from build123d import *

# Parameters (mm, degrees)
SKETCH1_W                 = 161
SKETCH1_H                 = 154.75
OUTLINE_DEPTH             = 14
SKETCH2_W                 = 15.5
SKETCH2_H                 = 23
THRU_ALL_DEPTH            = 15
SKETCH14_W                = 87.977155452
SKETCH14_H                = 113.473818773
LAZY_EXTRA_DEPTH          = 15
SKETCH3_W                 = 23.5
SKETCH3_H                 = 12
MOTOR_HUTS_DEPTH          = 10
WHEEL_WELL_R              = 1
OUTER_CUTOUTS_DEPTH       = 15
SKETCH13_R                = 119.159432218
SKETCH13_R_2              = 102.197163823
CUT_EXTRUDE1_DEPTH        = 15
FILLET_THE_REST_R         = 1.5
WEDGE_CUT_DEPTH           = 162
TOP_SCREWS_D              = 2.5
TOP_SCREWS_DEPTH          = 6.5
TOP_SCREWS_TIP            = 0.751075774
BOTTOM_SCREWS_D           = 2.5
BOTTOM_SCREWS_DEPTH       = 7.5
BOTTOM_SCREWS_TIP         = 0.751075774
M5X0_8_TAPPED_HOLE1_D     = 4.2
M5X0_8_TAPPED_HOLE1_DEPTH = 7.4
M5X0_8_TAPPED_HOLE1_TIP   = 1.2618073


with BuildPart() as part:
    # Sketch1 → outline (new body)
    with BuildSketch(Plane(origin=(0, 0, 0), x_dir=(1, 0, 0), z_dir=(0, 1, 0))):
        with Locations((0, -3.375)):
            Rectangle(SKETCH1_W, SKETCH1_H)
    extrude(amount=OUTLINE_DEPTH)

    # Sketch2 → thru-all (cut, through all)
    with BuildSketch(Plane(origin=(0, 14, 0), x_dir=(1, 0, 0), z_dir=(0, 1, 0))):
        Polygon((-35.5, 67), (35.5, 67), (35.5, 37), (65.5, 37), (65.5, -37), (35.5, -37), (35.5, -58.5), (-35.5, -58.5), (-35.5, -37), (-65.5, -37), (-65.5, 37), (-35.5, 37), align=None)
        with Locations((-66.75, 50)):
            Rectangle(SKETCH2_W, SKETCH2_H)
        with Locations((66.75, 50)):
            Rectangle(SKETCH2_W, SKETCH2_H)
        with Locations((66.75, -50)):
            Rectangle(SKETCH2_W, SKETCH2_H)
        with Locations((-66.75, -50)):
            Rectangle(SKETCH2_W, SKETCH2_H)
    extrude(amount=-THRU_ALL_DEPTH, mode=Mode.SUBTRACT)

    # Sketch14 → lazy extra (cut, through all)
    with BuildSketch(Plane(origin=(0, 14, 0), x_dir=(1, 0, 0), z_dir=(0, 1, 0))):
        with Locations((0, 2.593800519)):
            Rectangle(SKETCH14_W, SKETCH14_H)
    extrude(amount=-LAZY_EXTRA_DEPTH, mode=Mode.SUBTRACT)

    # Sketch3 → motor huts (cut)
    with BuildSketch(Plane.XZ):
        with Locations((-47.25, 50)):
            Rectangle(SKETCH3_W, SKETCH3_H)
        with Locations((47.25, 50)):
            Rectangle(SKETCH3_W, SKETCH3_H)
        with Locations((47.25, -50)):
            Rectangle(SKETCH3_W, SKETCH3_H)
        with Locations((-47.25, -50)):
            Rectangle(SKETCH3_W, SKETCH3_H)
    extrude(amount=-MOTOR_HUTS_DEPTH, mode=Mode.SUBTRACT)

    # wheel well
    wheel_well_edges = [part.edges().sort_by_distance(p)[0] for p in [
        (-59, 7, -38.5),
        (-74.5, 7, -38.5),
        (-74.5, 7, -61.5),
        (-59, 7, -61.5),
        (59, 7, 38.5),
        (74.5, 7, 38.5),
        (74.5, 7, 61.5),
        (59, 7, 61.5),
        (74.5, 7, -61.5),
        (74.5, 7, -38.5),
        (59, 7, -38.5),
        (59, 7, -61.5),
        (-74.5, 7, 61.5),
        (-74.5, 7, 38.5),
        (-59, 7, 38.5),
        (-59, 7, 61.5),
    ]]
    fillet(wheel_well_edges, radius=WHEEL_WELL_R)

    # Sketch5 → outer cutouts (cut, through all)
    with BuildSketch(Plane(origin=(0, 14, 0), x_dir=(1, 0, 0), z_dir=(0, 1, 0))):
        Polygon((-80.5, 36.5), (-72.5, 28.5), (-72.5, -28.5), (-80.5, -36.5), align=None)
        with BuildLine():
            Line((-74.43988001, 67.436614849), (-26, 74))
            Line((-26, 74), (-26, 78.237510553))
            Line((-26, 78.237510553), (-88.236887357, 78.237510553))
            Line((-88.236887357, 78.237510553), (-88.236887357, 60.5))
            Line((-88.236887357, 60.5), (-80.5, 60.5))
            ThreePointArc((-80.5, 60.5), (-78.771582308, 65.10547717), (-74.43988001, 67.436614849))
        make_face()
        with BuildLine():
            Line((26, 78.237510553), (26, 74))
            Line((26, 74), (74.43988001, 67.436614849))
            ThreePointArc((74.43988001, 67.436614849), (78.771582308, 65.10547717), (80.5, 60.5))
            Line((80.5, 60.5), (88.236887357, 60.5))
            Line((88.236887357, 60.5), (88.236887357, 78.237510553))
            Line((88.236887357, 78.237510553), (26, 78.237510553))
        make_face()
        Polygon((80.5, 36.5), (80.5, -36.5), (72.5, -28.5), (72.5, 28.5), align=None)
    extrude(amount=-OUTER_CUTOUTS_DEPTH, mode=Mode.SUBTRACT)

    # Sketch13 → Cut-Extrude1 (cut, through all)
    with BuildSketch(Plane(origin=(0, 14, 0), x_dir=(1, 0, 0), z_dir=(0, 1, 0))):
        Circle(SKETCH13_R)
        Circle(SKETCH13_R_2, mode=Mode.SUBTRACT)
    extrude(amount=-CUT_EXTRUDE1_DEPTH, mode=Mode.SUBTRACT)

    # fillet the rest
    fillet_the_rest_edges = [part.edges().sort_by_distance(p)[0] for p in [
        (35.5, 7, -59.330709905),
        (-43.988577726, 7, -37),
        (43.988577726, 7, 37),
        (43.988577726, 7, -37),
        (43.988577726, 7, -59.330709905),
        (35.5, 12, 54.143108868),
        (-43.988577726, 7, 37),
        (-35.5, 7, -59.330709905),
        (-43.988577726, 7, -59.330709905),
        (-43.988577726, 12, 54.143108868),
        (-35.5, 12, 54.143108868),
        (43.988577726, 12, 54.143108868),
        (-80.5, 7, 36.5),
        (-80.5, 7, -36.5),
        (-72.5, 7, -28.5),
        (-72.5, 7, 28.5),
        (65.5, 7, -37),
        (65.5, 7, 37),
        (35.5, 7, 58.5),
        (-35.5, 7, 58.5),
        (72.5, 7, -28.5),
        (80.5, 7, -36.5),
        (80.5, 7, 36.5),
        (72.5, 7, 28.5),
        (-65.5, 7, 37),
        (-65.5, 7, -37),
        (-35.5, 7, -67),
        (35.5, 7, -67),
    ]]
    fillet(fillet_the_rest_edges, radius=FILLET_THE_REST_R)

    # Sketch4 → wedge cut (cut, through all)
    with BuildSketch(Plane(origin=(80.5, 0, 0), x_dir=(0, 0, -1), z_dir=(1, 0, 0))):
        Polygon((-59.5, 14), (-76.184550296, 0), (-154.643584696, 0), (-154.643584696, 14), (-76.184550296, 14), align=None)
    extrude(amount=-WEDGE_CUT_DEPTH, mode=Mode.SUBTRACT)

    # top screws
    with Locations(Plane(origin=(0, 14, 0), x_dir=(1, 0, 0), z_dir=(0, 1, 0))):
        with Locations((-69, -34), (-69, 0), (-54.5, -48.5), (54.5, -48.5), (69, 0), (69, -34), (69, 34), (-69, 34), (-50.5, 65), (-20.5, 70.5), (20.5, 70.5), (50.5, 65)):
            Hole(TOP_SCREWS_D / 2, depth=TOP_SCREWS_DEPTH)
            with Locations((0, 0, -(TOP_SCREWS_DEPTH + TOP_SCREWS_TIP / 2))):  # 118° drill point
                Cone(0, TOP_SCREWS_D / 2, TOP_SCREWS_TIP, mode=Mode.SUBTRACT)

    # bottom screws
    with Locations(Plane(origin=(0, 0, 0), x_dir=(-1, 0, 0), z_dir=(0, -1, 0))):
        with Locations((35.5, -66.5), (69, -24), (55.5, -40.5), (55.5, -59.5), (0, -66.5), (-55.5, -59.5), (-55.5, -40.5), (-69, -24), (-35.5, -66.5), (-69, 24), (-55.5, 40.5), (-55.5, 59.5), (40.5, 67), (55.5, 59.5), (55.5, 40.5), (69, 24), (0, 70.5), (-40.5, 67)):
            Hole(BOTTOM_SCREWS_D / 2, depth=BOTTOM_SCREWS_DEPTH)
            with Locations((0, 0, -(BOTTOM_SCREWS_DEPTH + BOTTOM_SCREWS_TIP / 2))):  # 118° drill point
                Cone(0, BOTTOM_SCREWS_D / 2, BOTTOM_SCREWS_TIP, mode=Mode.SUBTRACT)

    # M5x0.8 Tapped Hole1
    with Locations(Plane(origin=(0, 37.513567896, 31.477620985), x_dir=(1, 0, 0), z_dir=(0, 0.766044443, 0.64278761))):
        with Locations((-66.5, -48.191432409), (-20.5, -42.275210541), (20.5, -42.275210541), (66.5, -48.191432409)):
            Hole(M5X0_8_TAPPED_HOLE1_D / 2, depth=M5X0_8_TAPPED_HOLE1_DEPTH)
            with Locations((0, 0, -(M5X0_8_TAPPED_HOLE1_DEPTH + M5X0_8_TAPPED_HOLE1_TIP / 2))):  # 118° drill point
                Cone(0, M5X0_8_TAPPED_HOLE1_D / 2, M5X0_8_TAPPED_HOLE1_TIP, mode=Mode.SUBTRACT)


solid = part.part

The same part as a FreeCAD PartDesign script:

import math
import FreeCAD as App
import Part
import Sketcher
Q = App.Units.Quantity


def edges_at(feature, points):
    """Names of the edges that pass closest to the given points."""
    edges = feature.Shape.Edges
    near = lambda p: min(range(len(edges)), key=lambda i: edges[i].distToShape(Part.Vertex(*p))[0])
    return sorted({f"Edge{near(p) + 1}" for p in points})

doc = App.newDocument("Part")
body = doc.addObject("PartDesign::Body", "Body")

# Sketch on XZ plane
sketch1 = doc.addObject("Sketcher::SketchObject", "Sketch")
body.addObject(sketch1)
sketch1.AttachmentSupport = (doc.XZ_Plane, [""])
sketch1.MapMode = "FlatFace"
sketch1.addGeometry([
    Part.LineSegment(App.Vector(-80, -74, 0), App.Vector(-80, 81, 0)),
    Part.LineSegment(App.Vector(-80, 81, 0), App.Vector(80, 81, 0)),
    Part.LineSegment(App.Vector(80, 81, 0), App.Vector(80, -74, 0)),
    Part.LineSegment(App.Vector(80, -74, 0), App.Vector(-80, -74, 0)),
], False)
sketch1.addConstraint([
    Sketcher.Constraint("Coincident", 0, 2, 1, 1),
    Sketcher.Constraint("Coincident", 1, 2, 2, 1),
    Sketcher.Constraint("Coincident", 2, 2, 3, 1),
    Sketcher.Constraint("Coincident", 3, 2, 0, 1),
    Sketcher.Constraint("Vertical", 0),
    Sketcher.Constraint("Horizontal", 1),
    Sketcher.Constraint("Vertical", 2),
    Sketcher.Constraint("Horizontal", 3),
    Sketcher.Constraint("DistanceX", 1, 1, 1, 2, 161.0),
    Sketcher.Constraint("DistanceY", 2, 2, -1, 1, 74.0),
    Sketcher.Constraint("DistanceY", 0, 1, 0, 2, 154.75),
    Sketcher.Constraint("DistanceX", 0, 2, -1, 1, 80.5),
])
pad1 = doc.addObject("PartDesign::Pad", "Pad")
body.addObject(pad1)
pad1.Profile = sketch1
pad1.Length = 14
pad1.Reversed = True

# Sketch on XZ plane
sketch2 = doc.addObject("Sketcher::SketchObject", "Sketch001")
body.addObject(sketch2)
sketch2.AttachmentSupport = (doc.XZ_Plane, [""])
sketch2.MapMode = "FlatFace"
sketch2.AttachmentOffset = App.Placement(App.Vector(0, 0, -14), App.Rotation())
sketch2.addGeometry([
    Part.LineSegment(App.Vector(36, -67, 0), App.Vector(-36, -67, 0)),  # 0
    Part.LineSegment(App.Vector(-36, -67, 0), App.Vector(-36, -37, 0)),  # 1
    Part.LineSegment(App.Vector(-36, -37, 0), App.Vector(-66, -37, 0)),  # 2
    Part.LineSegment(App.Vector(-66, -37, 0), App.Vector(-66, 37, 0)),  # 3
    Part.LineSegment(App.Vector(-66, 37, 0), App.Vector(-36, 37, 0)),  # 4
    Part.LineSegment(App.Vector(-36, 37, 0), App.Vector(-36, 58, 0)),  # 5
    Part.LineSegment(App.Vector(-36, 58, 0), App.Vector(36, 58, 0)),  # 6
    Part.LineSegment(App.Vector(36, 58, 0), App.Vector(36, 37, 0)),  # 7
    Part.LineSegment(App.Vector(36, 37, 0), App.Vector(66, 37, 0)),  # 8
    Part.LineSegment(App.Vector(66, 37, 0), App.Vector(66, -37, 0)),  # 9
    Part.LineSegment(App.Vector(66, -37, 0), App.Vector(36, -37, 0)),  # 10
    Part.LineSegment(App.Vector(36, -37, 0), App.Vector(36, -67, 0)),  # 11
    Part.LineSegment(App.Vector(-74, -62, 0), App.Vector(-74, -38, 0)),  # 12
    Part.LineSegment(App.Vector(-74, -38, 0), App.Vector(-59, -38, 0)),  # 13
    Part.LineSegment(App.Vector(-59, -38, 0), App.Vector(-59, -62, 0)),  # 14
    Part.LineSegment(App.Vector(-59, -62, 0), App.Vector(-74, -62, 0)),  # 15
    Part.LineSegment(App.Vector(59, -62, 0), App.Vector(59, -38, 0)),  # 16
    Part.LineSegment(App.Vector(59, -38, 0), App.Vector(74, -38, 0)),  # 17
    Part.LineSegment(App.Vector(74, -38, 0), App.Vector(74, -62, 0)),  # 18
    Part.LineSegment(App.Vector(74, -62, 0), App.Vector(59, -62, 0)),  # 19
    Part.LineSegment(App.Vector(59, 38, 0), App.Vector(59, 62, 0)),  # 20
    Part.LineSegment(App.Vector(59, 62, 0), App.Vector(74, 62, 0)),  # 21
    Part.LineSegment(App.Vector(74, 62, 0), App.Vector(74, 38, 0)),  # 22
    Part.LineSegment(App.Vector(74, 38, 0), App.Vector(59, 38, 0)),  # 23
    Part.LineSegment(App.Vector(-74, 38, 0), App.Vector(-74, 62, 0)),  # 24
    Part.LineSegment(App.Vector(-74, 62, 0), App.Vector(-59, 62, 0)),  # 25
    Part.LineSegment(App.Vector(-59, 62, 0), App.Vector(-59, 38, 0)),  # 26
    Part.LineSegment(App.Vector(-59, 38, 0), App.Vector(-74, 38, 0)),  # 27
], False)
sketch2.addConstraint([
    Sketcher.Constraint("Coincident", 0, 2, 1, 1),
    Sketcher.Constraint("Coincident", 1, 2, 2, 1),
    Sketcher.Constraint("Coincident", 2, 2, 3, 1),
    Sketcher.Constraint("Coincident", 3, 2, 4, 1),
    Sketcher.Constraint("Coincident", 4, 2, 5, 1),
    Sketcher.Constraint("Coincident", 5, 2, 6, 1),
    Sketcher.Constraint("Coincident", 6, 2, 7, 1),
    Sketcher.Constraint("Coincident", 7, 2, 8, 1),
    Sketcher.Constraint("Coincident", 8, 2, 9, 1),
    Sketcher.Constraint("Coincident", 9, 2, 10, 1),
    Sketcher.Constraint("Coincident", 10, 2, 11, 1),
    Sketcher.Constraint("Coincident", 11, 2, 0, 1),
    Sketcher.Constraint("Coincident", 12, 2, 13, 1),
    Sketcher.Constraint("Coincident", 13, 2, 14, 1),
    Sketcher.Constraint("Coincident", 14, 2, 15, 1),
    Sketcher.Constraint("Coincident", 15, 2, 12, 1),
    Sketcher.Constraint("Coincident", 16, 2, 17, 1),
    Sketcher.Constraint("Coincident", 17, 2, 18, 1),
    Sketcher.Constraint("Coincident", 18, 2, 19, 1),
    Sketcher.Constraint("Coincident", 19, 2, 16, 1),
    Sketcher.Constraint("Coincident", 20, 2, 21, 1),
    Sketcher.Constraint("Coincident", 21, 2, 22, 1),
    Sketcher.Constraint("Coincident", 22, 2, 23, 1),
    Sketcher.Constraint("Coincident", 23, 2, 20, 1),
    Sketcher.Constraint("Coincident", 24, 2, 25, 1),
    Sketcher.Constraint("Coincident", 25, 2, 26, 1),
    Sketcher.Constraint("Coincident", 26, 2, 27, 1),
    Sketcher.Constraint("Coincident", 27, 2, 24, 1),
    Sketcher.Constraint("Horizontal", 0),
    Sketcher.Constraint("Vertical", 1),
    Sketcher.Constraint("Horizontal", 2),
    Sketcher.Constraint("Vertical", 3),
    Sketcher.Constraint("Horizontal", 4),
    Sketcher.Constraint("Vertical", 5),
    Sketcher.Constraint("Horizontal", 6),
    Sketcher.Constraint("Vertical", 7),
    Sketcher.Constraint("Horizontal", 8),
    Sketcher.Constraint("Vertical", 9),
    Sketcher.Constraint("Horizontal", 10),
    Sketcher.Constraint("Vertical", 11),
    Sketcher.Constraint("Vertical", 12),
    Sketcher.Constraint("Horizontal", 13),
    Sketcher.Constraint("Vertical", 14),
    Sketcher.Constraint("Horizontal", 15),
    Sketcher.Constraint("Vertical", 16),
    Sketcher.Constraint("Horizontal", 17),
    Sketcher.Constraint("Vertical", 18),
    Sketcher.Constraint("Horizontal", 19),
    Sketcher.Constraint("Vertical", 20),
    Sketcher.Constraint("Horizontal", 21),
    Sketcher.Constraint("Vertical", 22),
    Sketcher.Constraint("Horizontal", 23),
    Sketcher.Constraint("Vertical", 24),
    Sketcher.Constraint("Horizontal", 25),
    Sketcher.Constraint("Vertical", 26),
    Sketcher.Constraint("Horizontal", 27),
    Sketcher.Constraint("Symmetric", 1, 2, 7, 2, -1, 1),
    Sketcher.Constraint("Symmetric", 3, 2, 9, 2, -1, 1),
    Sketcher.Constraint("Symmetric", 14, 2, 20, 2, -1, 1),
    Sketcher.Constraint("Symmetric", 12, 2, 22, 2, -1, 1),
    Sketcher.Constraint("Symmetric", 18, 2, 24, 2, -1, 1),
    Sketcher.Constraint("Symmetric", 16, 2, 26, 2, -1, 1),
    Sketcher.Constraint("Symmetric", 4, 2, 7, 2, -2),
    Sketcher.Constraint("Symmetric", 13, 2, 16, 2, -2),
    Sketcher.Constraint("Symmetric", 15, 2, 18, 2, -2),
    Sketcher.Constraint("Vertical", 7, 2, 10, 2),
    Sketcher.Constraint("Equal", 10, 1),
    Sketcher.Constraint("DistanceX", 0, 2, 0, 1, 71.0),
    Sketcher.Constraint("DistanceX", 2, 2, 2, 1, 30.0),
    Sketcher.Constraint("DistanceY", 3, 1, 3, 2, 74.0),
    Sketcher.Constraint("DistanceY", 12, 1, 12, 2, 23.0),
    Sketcher.Constraint("DistanceX", 13, 1, 13, 2, 15.5),
    Sketcher.Constraint("DistanceY", 5, 1, 5, 2, 21.5),
    Sketcher.Constraint("DistanceX", 13, 2, -1, 1, 59.0),
    Sketcher.Constraint("DistanceY", 6, 2, 20, 2, 3.0),
])
pocket1 = doc.addObject("PartDesign::Pocket", "Pocket")
body.addObject(pocket1)
pocket1.Profile = sketch2
pocket1.Type = "ThroughAll"
pocket1.Reversed = True

# Sketch on XZ plane
sketch3 = doc.addObject("Sketcher::SketchObject", "Sketch002")
body.addObject(sketch3)
sketch3.AttachmentSupport = (doc.XZ_Plane, [""])
sketch3.MapMode = "FlatFace"
sketch3.AttachmentOffset = App.Placement(App.Vector(0, 0, -14), App.Rotation())
sketch3.addGeometry([
    Part.LineSegment(App.Vector(-44, -59, 0), App.Vector(-44, 54, 0)),
    Part.LineSegment(App.Vector(-44, 54, 0), App.Vector(44, 54, 0)),
    Part.LineSegment(App.Vector(44, 54, 0), App.Vector(44, -59, 0)),
    Part.LineSegment(App.Vector(44, -59, 0), App.Vector(-44, -59, 0)),
], False)
sketch3.addConstraint([
    Sketcher.Constraint("Coincident", 0, 2, 1, 1),
    Sketcher.Constraint("Coincident", 1, 2, 2, 1),
    Sketcher.Constraint("Coincident", 2, 2, 3, 1),
    Sketcher.Constraint("Coincident", 3, 2, 0, 1),
    Sketcher.Constraint("Vertical", 0),
    Sketcher.Constraint("Horizontal", 1),
    Sketcher.Constraint("Vertical", 2),
    Sketcher.Constraint("Horizontal", 3),
    Sketcher.Constraint("DistanceY", 0, 1, 0, 2, 113.473819),
    Sketcher.Constraint("DistanceX", 1, 1, 1, 2, 87.977155),
    Sketcher.Constraint("DistanceY", -1, 1, 0, 2, 54.143109),
    Sketcher.Constraint("DistanceX", 0, 2, -1, 1, 43.988578),
])
pocket2 = doc.addObject("PartDesign::Pocket", "Pocket001")
body.addObject(pocket2)
pocket2.Profile = sketch3
pocket2.Type = "ThroughAll"
pocket2.Reversed = True

# Sketch on XZ plane
sketch4 = doc.addObject("Sketcher::SketchObject", "Sketch003")
body.addObject(sketch4)
sketch4.AttachmentSupport = (doc.XZ_Plane, [""])
sketch4.MapMode = "FlatFace"
sketch4.addGeometry([
    Part.LineSegment(App.Vector(-59, 56, 0), App.Vector(-59, 44, 0)),  # 0
    Part.LineSegment(App.Vector(-59, 44, 0), App.Vector(-36, 44, 0)),  # 1
    Part.LineSegment(App.Vector(-36, 44, 0), App.Vector(-36, 56, 0)),  # 2
    Part.LineSegment(App.Vector(-36, 56, 0), App.Vector(-59, 56, 0)),  # 3
    Part.LineSegment(App.Vector(36, 56, 0), App.Vector(36, 44, 0)),  # 4
    Part.LineSegment(App.Vector(36, 44, 0), App.Vector(59, 44, 0)),  # 5
    Part.LineSegment(App.Vector(59, 44, 0), App.Vector(59, 56, 0)),  # 6
    Part.LineSegment(App.Vector(59, 56, 0), App.Vector(36, 56, 0)),  # 7
    Part.LineSegment(App.Vector(36, -44, 0), App.Vector(36, -56, 0)),  # 8
    Part.LineSegment(App.Vector(36, -56, 0), App.Vector(59, -56, 0)),  # 9
    Part.LineSegment(App.Vector(59, -56, 0), App.Vector(59, -44, 0)),  # 10
    Part.LineSegment(App.Vector(59, -44, 0), App.Vector(36, -44, 0)),  # 11
    Part.LineSegment(App.Vector(-59, -44, 0), App.Vector(-59, -56, 0)),  # 12
    Part.LineSegment(App.Vector(-59, -56, 0), App.Vector(-36, -56, 0)),  # 13
    Part.LineSegment(App.Vector(-36, -56, 0), App.Vector(-36, -44, 0)),  # 14
    Part.LineSegment(App.Vector(-36, -44, 0), App.Vector(-59, -44, 0)),  # 15
], False)
sketch4.addConstraint([
    Sketcher.Constraint("Coincident", 0, 2, 1, 1),
    Sketcher.Constraint("Coincident", 1, 2, 2, 1),
    Sketcher.Constraint("Coincident", 2, 2, 3, 1),
    Sketcher.Constraint("Coincident", 3, 2, 0, 1),
    Sketcher.Constraint("Coincident", 4, 2, 5, 1),
    Sketcher.Constraint("Coincident", 5, 2, 6, 1),
    Sketcher.Constraint("Coincident", 6, 2, 7, 1),
    Sketcher.Constraint("Coincident", 7, 2, 4, 1),
    Sketcher.Constraint("Coincident", 8, 2, 9, 1),
    Sketcher.Constraint("Coincident", 9, 2, 10, 1),
    Sketcher.Constraint("Coincident", 10, 2, 11, 1),
    Sketcher.Constraint("Coincident", 11, 2, 8, 1),
    Sketcher.Constraint("Coincident", 12, 2, 13, 1),
    Sketcher.Constraint("Coincident", 13, 2, 14, 1),
    Sketcher.Constraint("Coincident", 14, 2, 15, 1),
    Sketcher.Constraint("Coincident", 15, 2, 12, 1),
    Sketcher.Constraint("Vertical", 0),
    Sketcher.Constraint("Horizontal", 1),
    Sketcher.Constraint("Vertical", 2),
    Sketcher.Constraint("Horizontal", 3),
    Sketcher.Constraint("Vertical", 4),
    Sketcher.Constraint("Horizontal", 5),
    Sketcher.Constraint("Vertical", 6),
    Sketcher.Constraint("Horizontal", 7),
    Sketcher.Constraint("Vertical", 8),
    Sketcher.Constraint("Horizontal", 9),
    Sketcher.Constraint("Vertical", 10),
    Sketcher.Constraint("Horizontal", 11),
    Sketcher.Constraint("Vertical", 12),
    Sketcher.Constraint("Horizontal", 13),
    Sketcher.Constraint("Vertical", 14),
    Sketcher.Constraint("Horizontal", 15),
    Sketcher.Constraint("Symmetric", 2, 2, 8, 2, -1, 1),
    Sketcher.Constraint("Symmetric", 0, 2, 10, 2, -1, 1),
    Sketcher.Constraint("Symmetric", 6, 2, 12, 2, -1, 1),
    Sketcher.Constraint("Symmetric", 4, 2, 14, 2, -1, 1),
    Sketcher.Constraint("Symmetric", 1, 2, 4, 2, -2),
    Sketcher.Constraint("Symmetric", 3, 2, 6, 2, -2),
    Sketcher.Constraint("DistanceY", 0, 2, 0, 1, 12.0),
    Sketcher.Constraint("DistanceX", 1, 1, 1, 2, 23.5),
    Sketcher.Constraint("DistanceX", 0, 2, -1, 1, 59.0),
    Sketcher.Constraint("DistanceY", -1, 1, 0, 2, 44.0),
])
pocket3 = doc.addObject("PartDesign::Pocket", "Pocket002")
body.addObject(pocket3)
pocket3.Profile = sketch4
pocket3.Length = 10
doc.recompute()

fillet = doc.addObject("PartDesign::Fillet", "Fillet")
body.addObject(fillet)
fillet.Base = (pocket3, edges_at(pocket3, [
    (-59, 7, -38.5),
    (-74.5, 7, -38.5),
    (-74.5, 7, -61.5),
    (-59, 7, -61.5),
    (59, 7, 38.5),
    (74.5, 7, 38.5),
    (74.5, 7, 61.5),
    (59, 7, 61.5),
    (74.5, 7, -61.5),
    (74.5, 7, -38.5),
    (59, 7, -38.5),
    (59, 7, -61.5),
    (-74.5, 7, 61.5),
    (-74.5, 7, 38.5),
    (-59, 7, 38.5),
    (-59, 7, 61.5),
]))
fillet.Radius = 1

# Sketch on XZ plane
sketch5 = doc.addObject("Sketcher::SketchObject", "Sketch004")
body.addObject(sketch5)
sketch5.AttachmentSupport = (doc.XZ_Plane, [""])
sketch5.MapMode = "FlatFace"
sketch5.AttachmentOffset = App.Placement(App.Vector(0, 0, -14), App.Rotation())
sketch5.addGeometry([
    Part.LineSegment(App.Vector(-72.5, -28.5, 0), App.Vector(-80.5, -36.5, 0)),  # 0
    Part.LineSegment(App.Vector(-80.5, -36.5, 0), App.Vector(-80.5, 36.5, 0)),  # 1
    Part.LineSegment(App.Vector(-80.5, 36.5, 0), App.Vector(-72.5, 28.5, 0)),  # 2
    Part.LineSegment(App.Vector(-72.5, 28.5, 0), App.Vector(-72.5, -28.5, 0)),  # 3
    Part.LineSegment(App.Vector(-74.4, -67.4, 0), App.Vector(-26, -74, 0)),  # 4
    Part.LineSegment(App.Vector(-26, -74, 0), App.Vector(-26, -78.2, 0)),  # 5
    Part.LineSegment(App.Vector(-26, -78.2, 0), App.Vector(-88.2, -78.2, 0)),  # 6
    Part.LineSegment(App.Vector(-88.2, -78.2, 0), App.Vector(-88.2, -60.5, 0)),  # 7
    Part.LineSegment(App.Vector(-88.2, -60.5, 0), App.Vector(-80.5, -60.5, 0)),  # 8
    Part.ArcOfCircle(Part.Circle(App.Vector(-73.5, -60.5, 0), App.Vector(0, 0, 1), 7), math.radians(-180), math.radians(-98)),  # 9
    Part.LineSegment(App.Vector(26, -78.2, 0), App.Vector(26, -74, 0)),  # 10
    Part.LineSegment(App.Vector(26, -74, 0), App.Vector(74.4, -67.4, 0)),  # 11
    Part.ArcOfCircle(Part.Circle(App.Vector(73.5, -60.5, 0), App.Vector(0, 0, 1), 7), math.radians(-82), math.radians(0)),  # 12
    Part.LineSegment(App.Vector(80.5, -60.5, 0), App.Vector(88.2, -60.5, 0)),  # 13
    Part.LineSegment(App.Vector(88.2, -60.5, 0), App.Vector(88.2, -78.2, 0)),  # 14
    Part.LineSegment(App.Vector(88.2, -78.2, 0), App.Vector(26, -78.2, 0)),  # 15
    Part.LineSegment(App.Vector(80.5, 36.5, 0), App.Vector(80.5, -36.5, 0)),  # 16
    Part.LineSegment(App.Vector(80.5, -36.5, 0), App.Vector(72.5, -28.5, 0)),  # 17
    Part.LineSegment(App.Vector(72.5, -28.5, 0), App.Vector(72.5, 28.5, 0)),  # 18
    Part.LineSegment(App.Vector(72.5, 28.5, 0), App.Vector(80.5, 36.5, 0)),  # 19
], False)
sketch5.addConstraint([
    Sketcher.Constraint("Coincident", 0, 2, 1, 1),
    Sketcher.Constraint("Coincident", 1, 2, 2, 1),
    Sketcher.Constraint("Coincident", 2, 2, 3, 1),
    Sketcher.Constraint("Coincident", 3, 2, 0, 1),
    Sketcher.Constraint("Coincident", 4, 2, 5, 1),
    Sketcher.Constraint("Coincident", 5, 2, 6, 1),
    Sketcher.Constraint("Coincident", 6, 2, 7, 1),
    Sketcher.Constraint("Coincident", 7, 2, 8, 1),
    Sketcher.Constraint("Coincident", 8, 2, 9, 1),
    Sketcher.Constraint("Tangent", 9, 2, 4, 1),
    Sketcher.Constraint("Coincident", 10, 2, 11, 1),
    Sketcher.Constraint("Tangent", 11, 2, 12, 1),
    Sketcher.Constraint("Coincident", 12, 2, 13, 1),
    Sketcher.Constraint("Coincident", 13, 2, 14, 1),
    Sketcher.Constraint("Coincident", 14, 2, 15, 1),
    Sketcher.Constraint("Coincident", 15, 2, 10, 1),
    Sketcher.Constraint("Coincident", 16, 2, 17, 1),
    Sketcher.Constraint("Coincident", 17, 2, 18, 1),
    Sketcher.Constraint("Coincident", 18, 2, 19, 1),
    Sketcher.Constraint("Coincident", 19, 2, 16, 1),
    Sketcher.Constraint("Vertical", 1),
    Sketcher.Constraint("Vertical", 3),
    Sketcher.Constraint("Vertical", 5),
    Sketcher.Constraint("Horizontal", 6),
    Sketcher.Constraint("Vertical", 7),
    Sketcher.Constraint("Horizontal", 8),
    Sketcher.Constraint("Vertical", 10),
    Sketcher.Constraint("Horizontal", 13),
    Sketcher.Constraint("Vertical", 14),
    Sketcher.Constraint("Horizontal", 15),
    Sketcher.Constraint("Vertical", 16),
    Sketcher.Constraint("Vertical", 18),
    Sketcher.Constraint("Equal", 9, 12),
    Sketcher.Constraint("Symmetric", 1, 2, 16, 2, -1, 1),
    Sketcher.Constraint("Symmetric", 2, 2, 17, 2, -1, 1),
    Sketcher.Constraint("Symmetric", 9, 3, 12, 3, -2),
    Sketcher.Constraint("Symmetric", 4, 2, 10, 2, -2),
    Sketcher.Constraint("Symmetric", 7, 2, 13, 2, -2),
    Sketcher.Constraint("Perpendicular", 0, 2),
    Sketcher.Constraint("Perpendicular", 17, 19),
    Sketcher.Constraint("Horizontal", 12, 3, 7, 2),
    Sketcher.Constraint("Horizontal", 6, 2, 14, 2),
    Sketcher.Constraint("Horizontal", 0, 2, 16, 2),
    Sketcher.Constraint("Horizontal", 3, 2, 17, 2),
    Sketcher.Constraint("Horizontal", 2, 2, 18, 2),
    Sketcher.Constraint("Vertical", 1, 2, 8, 2),
    Sketcher.Constraint("Radius", 9, 7.0),
    Sketcher.Constraint("DistanceY", 1, 1, 1, 2, 73.0),
    Sketcher.Constraint("DistanceY", 3, 2, 3, 1, 57.0),
    Sketcher.Constraint("DistanceX", 4, 2, -1, 1, 26.0),
    Sketcher.Constraint("DistanceY", 4, 2, -1, 1, 74.0),
    Sketcher.Constraint("DistanceX", 9, 3, 12, 3, 147.0),
    Sketcher.Constraint("DistanceY", 9, 3, 0, 2, 24.0),
    Sketcher.Constraint("DistanceY", 5, 2, 5, 1, 4.237511),
    Sketcher.Constraint("DistanceX", 6, 2, 6, 1, 62.236887),
])
pocket4 = doc.addObject("PartDesign::Pocket", "Pocket003")
body.addObject(pocket4)
pocket4.Profile = sketch5
pocket4.Type = "ThroughAll"
pocket4.Reversed = True

# Sketch on XZ plane
sketch6 = doc.addObject("Sketcher::SketchObject", "Sketch005")
body.addObject(sketch6)
sketch6.AttachmentSupport = (doc.XZ_Plane, [""])
sketch6.MapMode = "FlatFace"
sketch6.AttachmentOffset = App.Placement(App.Vector(0, 0, -14), App.Rotation())
sketch6.addGeometry([
    Part.Circle(App.Vector(0, 0, 0), App.Vector(0, 0, 1), 119),
    Part.Circle(App.Vector(0, 0, 0), App.Vector(0, 0, 1), 102),
], False)
sketch6.addConstraint([
    Sketcher.Constraint("Coincident", 0, 3, -1, 1),
    Sketcher.Constraint("Coincident", 1, 3, -1, 1),
    Sketcher.Constraint("Diameter", 0, 238.318864),
    Sketcher.Constraint("Diameter", 1, 204.394328),
])
pocket5 = doc.addObject("PartDesign::Pocket", "Pocket004")
body.addObject(pocket5)
pocket5.Profile = sketch6
pocket5.Type = "ThroughAll"
pocket5.Reversed = True
doc.recompute()

fillet2 = doc.addObject("PartDesign::Fillet", "Fillet001")
body.addObject(fillet2)
fillet2.Base = (pocket5, edges_at(pocket5, [
    (35.5, 7, -59.331),
    (-43.989, 7, -37),
    (43.989, 7, 37),
    (43.989, 7, -37),
    (43.989, 7, -59.331),
    (35.5, 12, 54.143),
    (-43.989, 7, 37),
    (-35.5, 7, -59.331),
    (-43.989, 7, -59.331),
    (-43.989, 12, 54.143),
    (-35.5, 12, 54.143),
    (43.989, 12, 54.143),
    (-80.5, 7, 36.5),
    (-80.5, 7, -36.5),
    (-72.5, 7, -28.5),
    (-72.5, 7, 28.5),
    (65.5, 7, -37),
    (65.5, 7, 37),
    (35.5, 7, 58.5),
    (-35.5, 7, 58.5),
    (72.5, 7, -28.5),
    (80.5, 7, -36.5),
    (80.5, 7, 36.5),
    (72.5, 7, 28.5),
    (-65.5, 7, 37),
    (-65.5, 7, -37),
    (-35.5, 7, -67),
    (35.5, 7, -67),
]))
fillet2.Radius = 1.5

# Sketch on YZ plane
sketch7 = doc.addObject("Sketcher::SketchObject", "Sketch006")
body.addObject(sketch7)
sketch7.AttachmentSupport = (doc.YZ_Plane, [""])
sketch7.MapMode = "FlatFace"
sketch7.AttachmentOffset = App.Placement(App.Vector(0, 0, 80.5), App.Rotation())
sketch7.addGeometry([
    Part.LineSegment(App.Vector(0, 76, 0), App.Vector(14, 60, 0)),
    Part.LineSegment(App.Vector(14, 60, 0), App.Vector(14, 155, 0)),
    Part.LineSegment(App.Vector(14, 155, 0), App.Vector(0, 155, 0)),
    Part.LineSegment(App.Vector(0, 155, 0), App.Vector(0, 76, 0)),
], False)
sketch7.addConstraint([
    Sketcher.Constraint("Coincident", 0, 2, 1, 1),
    Sketcher.Constraint("Coincident", 1, 2, 2, 1),
    Sketcher.Constraint("Coincident", 2, 2, 3, 1),
    Sketcher.Constraint("Coincident", 3, 2, 0, 1),
    Sketcher.Constraint("Vertical", 1),
    Sketcher.Constraint("Horizontal", 2),
    Sketcher.Constraint("Vertical", 3),
    Sketcher.Constraint("PointOnObject", 2, 2, -2),
    Sketcher.Constraint("DistanceX", 2, 2, 2, 1, 14.0),
    Sketcher.Constraint("Angle", 0, Q("-50 deg")),
    Sketcher.Constraint("DistanceY", -1, 1, 0, 2, 59.5),
    Sketcher.Constraint("DistanceY", 1, 1, 1, 2, 95.143585),
])
pocket6 = doc.addObject("PartDesign::Pocket", "Pocket005")
body.addObject(pocket6)
pocket6.Profile = sketch7
pocket6.Type = "ThroughAll"

# Sketch on XZ plane
sketch8 = doc.addObject("Sketcher::SketchObject", "Sketch007")
body.addObject(sketch8)
sketch8.AttachmentSupport = (doc.XZ_Plane, [""])
sketch8.MapMode = "FlatFace"
sketch8.AttachmentOffset = App.Placement(App.Vector(0, 0, -14), App.Rotation())
sketch8.addGeometry([
    Part.Circle(App.Vector(-69, 34, 0), App.Vector(0, 0, 1), 1.2),  # 0
    Part.Circle(App.Vector(-69, 0, 0), App.Vector(0, 0, 1), 1.2),  # 1
    Part.Circle(App.Vector(-54.5, 48.5, 0), App.Vector(0, 0, 1), 1.2),  # 2
    Part.Circle(App.Vector(54.5, 48.5, 0), App.Vector(0, 0, 1), 1.2),  # 3
    Part.Circle(App.Vector(69, 0, 0), App.Vector(0, 0, 1), 1.2),  # 4
    Part.Circle(App.Vector(69, 34, 0), App.Vector(0, 0, 1), 1.2),  # 5
    Part.Circle(App.Vector(69, -34, 0), App.Vector(0, 0, 1), 1.2),  # 6
    Part.Circle(App.Vector(-69, -34, 0), App.Vector(0, 0, 1), 1.2),  # 7
    Part.Circle(App.Vector(-50.5, -65, 0), App.Vector(0, 0, 1), 1.2),  # 8
    Part.Circle(App.Vector(-20.5, -70.5, 0), App.Vector(0, 0, 1), 1.2),  # 9
    Part.Circle(App.Vector(20.5, -70.5, 0), App.Vector(0, 0, 1), 1.2),  # 10
    Part.Circle(App.Vector(50.5, -65, 0), App.Vector(0, 0, 1), 1.2),  # 11
], False)
sketch8.addConstraint([
    Sketcher.Constraint("Equal", 0, 1),
    Sketcher.Constraint("Equal", 1, 2),
    Sketcher.Constraint("Equal", 2, 3),
    Sketcher.Constraint("Equal", 3, 4),
    Sketcher.Constraint("Equal", 4, 5),
    Sketcher.Constraint("Equal", 5, 6),
    Sketcher.Constraint("Equal", 6, 7),
    Sketcher.Constraint("Equal", 7, 8),
    Sketcher.Constraint("Equal", 8, 9),
    Sketcher.Constraint("Equal", 9, 10),
    Sketcher.Constraint("Equal", 10, 11),
    Sketcher.Constraint("Symmetric", 1, 3, 4, 3, -1, 1),
    Sketcher.Constraint("Symmetric", 0, 3, 6, 3, -1, 1),
    Sketcher.Constraint("Symmetric", 5, 3, 7, 3, -1, 1),
    Sketcher.Constraint("Symmetric", 2, 3, 3, 3, -2),
    Sketcher.Constraint("Symmetric", 0, 3, 5, 3, -2),
    Sketcher.Constraint("Symmetric", 9, 3, 10, 3, -2),
    Sketcher.Constraint("Symmetric", 8, 3, 11, 3, -2),
    Sketcher.Constraint("PointOnObject", 1, 3, -1),
    Sketcher.Constraint("Vertical", 0, 3, 1, 3),
    Sketcher.Constraint("Diameter", 0, 2.5),
    Sketcher.Constraint("DistanceX", 0, 3, -1, 1, 69.0),
    Sketcher.Constraint("DistanceY", -1, 1, 0, 3, 34.0),
    Sketcher.Constraint("DistanceY", 8, 3, -1, 1, 65.0),
    Sketcher.Constraint("DistanceX", 2, 3, 3, 3, 109.0),
    Sketcher.Constraint("DistanceX", 2, 3, 8, 3, 4.0),
    Sketcher.Constraint("DistanceX", 8, 3, 9, 3, 30.0),
    Sketcher.Constraint("DistanceY", -1, 1, 2, 3, 48.5),
    Sketcher.Constraint("DistanceY", 9, 3, -1, 1, 70.5),
])
doc.recompute()
hole = doc.addObject("PartDesign::Hole", "Hole")
body.addObject(hole)
hole.Profile = sketch8
hole.ThreadType = "None"
hole.Diameter = 2.5
hole.DepthType = "Dimension"
hole.Depth = 6.5
hole.DrillPoint = "Angled"
hole.DrillPointAngle = 118
hole.Reversed = True

# Sketch on XZ plane
sketch9 = doc.addObject("Sketcher::SketchObject", "Sketch008")
body.addObject(sketch9)
sketch9.AttachmentSupport = (doc.XZ_Plane, [""])
sketch9.MapMode = "FlatFace"
sketch9.addGeometry([
    Part.Circle(App.Vector(-35.5, 66.5, 0), App.Vector(0, 0, 1), 1.2),  # 0
    Part.Circle(App.Vector(-69, 24, 0), App.Vector(0, 0, 1), 1.2),  # 1
    Part.Circle(App.Vector(-55.5, 40.5, 0), App.Vector(0, 0, 1), 1.2),  # 2
    Part.Circle(App.Vector(-55.5, 59.5, 0), App.Vector(0, 0, 1), 1.2),  # 3
    Part.Circle(App.Vector(0, 66.5, 0), App.Vector(0, 0, 1), 1.2),  # 4
    Part.Circle(App.Vector(55.5, 59.5, 0), App.Vector(0, 0, 1), 1.2),  # 5
    Part.Circle(App.Vector(55.5, 40.5, 0), App.Vector(0, 0, 1), 1.2),  # 6
    Part.Circle(App.Vector(69, 24, 0), App.Vector(0, 0, 1), 1.2),  # 7
    Part.Circle(App.Vector(35.5, 66.5, 0), App.Vector(0, 0, 1), 1.2),  # 8
    Part.Circle(App.Vector(69, -24, 0), App.Vector(0, 0, 1), 1.2),  # 9
    Part.Circle(App.Vector(55.5, -40.5, 0), App.Vector(0, 0, 1), 1.2),  # 10
    Part.Circle(App.Vector(55.5, -59.5, 0), App.Vector(0, 0, 1), 1.2),  # 11
    Part.Circle(App.Vector(-40.5, -67, 0), App.Vector(0, 0, 1), 1.2),  # 12
    Part.Circle(App.Vector(-55.5, -59.5, 0), App.Vector(0, 0, 1), 1.2),  # 13
    Part.Circle(App.Vector(-55.5, -40.5, 0), App.Vector(0, 0, 1), 1.2),  # 14
    Part.Circle(App.Vector(-69, -24, 0), App.Vector(0, 0, 1), 1.2),  # 15
    Part.Circle(App.Vector(0, -70.5, 0), App.Vector(0, 0, 1), 1.2),  # 16
    Part.Circle(App.Vector(40.5, -67, 0), App.Vector(0, 0, 1), 1.2),  # 17
], False)
sketch9.addConstraint([
    Sketcher.Constraint("Equal", 0, 1),
    Sketcher.Constraint("Equal", 1, 2),
    Sketcher.Constraint("Equal", 2, 3),
    Sketcher.Constraint("Equal", 3, 4),
    Sketcher.Constraint("Equal", 4, 5),
    Sketcher.Constraint("Equal", 5, 6),
    Sketcher.Constraint("Equal", 6, 7),
    Sketcher.Constraint("Equal", 7, 8),
    Sketcher.Constraint("Equal", 8, 9),
    Sketcher.Constraint("Equal", 9, 10),
    Sketcher.Constraint("Equal", 10, 11),
    Sketcher.Constraint("Equal", 11, 12),
    Sketcher.Constraint("Equal", 12, 13),
    Sketcher.Constraint("Equal", 13, 14),
    Sketcher.Constraint("Equal", 14, 15),
    Sketcher.Constraint("Equal", 15, 16),
    Sketcher.Constraint("Equal", 16, 17),
    Sketcher.Constraint("Symmetric", 1, 3, 9, 3, -1, 1),
    Sketcher.Constraint("Symmetric", 2, 3, 10, 3, -1, 1),
    Sketcher.Constraint("Symmetric", 3, 3, 11, 3, -1, 1),
    Sketcher.Constraint("Symmetric", 5, 3, 13, 3, -1, 1),
    Sketcher.Constraint("Symmetric", 6, 3, 14, 3, -1, 1),
    Sketcher.Constraint("Symmetric", 7, 3, 15, 3, -1, 1),
    Sketcher.Constraint("Symmetric", 3, 3, 5, 3, -2),
    Sketcher.Constraint("Symmetric", 2, 3, 6, 3, -2),
    Sketcher.Constraint("Symmetric", 1, 3, 7, 3, -2),
    Sketcher.Constraint("Symmetric", 0, 3, 8, 3, -2),
    Sketcher.Constraint("Symmetric", 12, 3, 17, 3, -2),
    Sketcher.Constraint("PointOnObject", 4, 3, -2),
    Sketcher.Constraint("PointOnObject", 16, 3, -2),
    Sketcher.Constraint("Horizontal", 0, 3, 4, 3),
    Sketcher.Constraint("Vertical", 2, 3, 3, 3),
    Sketcher.Constraint("Diameter", 0, 2.5),
    Sketcher.Constraint("DistanceX", 1, 3, -1, 1, 69.0),
    Sketcher.Constraint("DistanceY", -1, 1, 1, 3, 24.0),
    Sketcher.Constraint("DistanceY", 12, 3, -1, 1, 67.0),
    Sketcher.Constraint("DistanceX", 2, 3, 0, 3, 20.0),
    Sketcher.Constraint("DistanceY", 2, 3, 0, 3, 26.0),
    Sketcher.Constraint("DistanceY", 2, 3, 3, 3, 19.0),
    Sketcher.Constraint("DistanceX", 0, 3, 5, 3, 91.0),
    Sketcher.Constraint("DistanceY", 10, 3, 6, 3, 81.0),
    Sketcher.Constraint("DistanceX", 12, 3, 11, 3, 96.0),
    Sketcher.Constraint("DistanceY", 16, 3, 11, 3, 11.0),
])
doc.recompute()
hole2 = doc.addObject("PartDesign::Hole", "Hole001")
body.addObject(hole2)
hole2.Profile = sketch9
hole2.ThreadType = "None"
hole2.Diameter = 2.5
hole2.DepthType = "Dimension"
hole2.Depth = 7.5
hole2.DrillPoint = "Angled"
hole2.DrillPointAngle = 118

# Sketch on an angled plane
sketch10 = doc.addObject("Sketcher::SketchObject", "Sketch009")
body.addObject(sketch10)
sketch10.Placement = App.Placement(App.Vector(0, 37.513568, 31.477621), App.Rotation(App.Vector(1, 0, 0), App.Vector(0, 0.64278761, -0.766044443), App.Vector(0, 0.766044443, 0.64278761), "ZXY"))
sketch10.addGeometry([
    Part.Circle(App.Vector(-66.5, -48.2, 0), App.Vector(0, 0, 1), 2.1),
    Part.Circle(App.Vector(-20.5, -42.3, 0), App.Vector(0, 0, 1), 2.1),
    Part.Circle(App.Vector(20.5, -42.3, 0), App.Vector(0, 0, 1), 2.1),
    Part.Circle(App.Vector(66.5, -48.2, 0), App.Vector(0, 0, 1), 2.1),
], False)
sketch10.addConstraint([
    Sketcher.Constraint("Equal", 0, 1),
    Sketcher.Constraint("Equal", 1, 2),
    Sketcher.Constraint("Equal", 2, 3),
    Sketcher.Constraint("Symmetric", 1, 3, 2, 3, -2),
    Sketcher.Constraint("Symmetric", 0, 3, 3, 3, -2),
    Sketcher.Constraint("Diameter", 0, 4.2),
    Sketcher.Constraint("DistanceX", 0, 3, 1, 3, 46.0),
    Sketcher.Constraint("DistanceX", 1, 3, 2, 3, 41.0),
    Sketcher.Constraint("DistanceY", 1, 3, -1, 1, 42.275211),
    Sketcher.Constraint("DistanceY", 0, 3, 1, 3, 5.916222),
])
doc.recompute()
hole3 = doc.addObject("PartDesign::Hole", "Hole002")
body.addObject(hole3)
hole3.Profile = sketch10
hole3.ThreadType = "None"
hole3.Diameter = 4.2
hole3.DepthType = "Dimension"
hole3.Depth = 7.4
hole3.DrillPoint = "Angled"
hole3.DrillPointAngle = 118

doc.recompute()
